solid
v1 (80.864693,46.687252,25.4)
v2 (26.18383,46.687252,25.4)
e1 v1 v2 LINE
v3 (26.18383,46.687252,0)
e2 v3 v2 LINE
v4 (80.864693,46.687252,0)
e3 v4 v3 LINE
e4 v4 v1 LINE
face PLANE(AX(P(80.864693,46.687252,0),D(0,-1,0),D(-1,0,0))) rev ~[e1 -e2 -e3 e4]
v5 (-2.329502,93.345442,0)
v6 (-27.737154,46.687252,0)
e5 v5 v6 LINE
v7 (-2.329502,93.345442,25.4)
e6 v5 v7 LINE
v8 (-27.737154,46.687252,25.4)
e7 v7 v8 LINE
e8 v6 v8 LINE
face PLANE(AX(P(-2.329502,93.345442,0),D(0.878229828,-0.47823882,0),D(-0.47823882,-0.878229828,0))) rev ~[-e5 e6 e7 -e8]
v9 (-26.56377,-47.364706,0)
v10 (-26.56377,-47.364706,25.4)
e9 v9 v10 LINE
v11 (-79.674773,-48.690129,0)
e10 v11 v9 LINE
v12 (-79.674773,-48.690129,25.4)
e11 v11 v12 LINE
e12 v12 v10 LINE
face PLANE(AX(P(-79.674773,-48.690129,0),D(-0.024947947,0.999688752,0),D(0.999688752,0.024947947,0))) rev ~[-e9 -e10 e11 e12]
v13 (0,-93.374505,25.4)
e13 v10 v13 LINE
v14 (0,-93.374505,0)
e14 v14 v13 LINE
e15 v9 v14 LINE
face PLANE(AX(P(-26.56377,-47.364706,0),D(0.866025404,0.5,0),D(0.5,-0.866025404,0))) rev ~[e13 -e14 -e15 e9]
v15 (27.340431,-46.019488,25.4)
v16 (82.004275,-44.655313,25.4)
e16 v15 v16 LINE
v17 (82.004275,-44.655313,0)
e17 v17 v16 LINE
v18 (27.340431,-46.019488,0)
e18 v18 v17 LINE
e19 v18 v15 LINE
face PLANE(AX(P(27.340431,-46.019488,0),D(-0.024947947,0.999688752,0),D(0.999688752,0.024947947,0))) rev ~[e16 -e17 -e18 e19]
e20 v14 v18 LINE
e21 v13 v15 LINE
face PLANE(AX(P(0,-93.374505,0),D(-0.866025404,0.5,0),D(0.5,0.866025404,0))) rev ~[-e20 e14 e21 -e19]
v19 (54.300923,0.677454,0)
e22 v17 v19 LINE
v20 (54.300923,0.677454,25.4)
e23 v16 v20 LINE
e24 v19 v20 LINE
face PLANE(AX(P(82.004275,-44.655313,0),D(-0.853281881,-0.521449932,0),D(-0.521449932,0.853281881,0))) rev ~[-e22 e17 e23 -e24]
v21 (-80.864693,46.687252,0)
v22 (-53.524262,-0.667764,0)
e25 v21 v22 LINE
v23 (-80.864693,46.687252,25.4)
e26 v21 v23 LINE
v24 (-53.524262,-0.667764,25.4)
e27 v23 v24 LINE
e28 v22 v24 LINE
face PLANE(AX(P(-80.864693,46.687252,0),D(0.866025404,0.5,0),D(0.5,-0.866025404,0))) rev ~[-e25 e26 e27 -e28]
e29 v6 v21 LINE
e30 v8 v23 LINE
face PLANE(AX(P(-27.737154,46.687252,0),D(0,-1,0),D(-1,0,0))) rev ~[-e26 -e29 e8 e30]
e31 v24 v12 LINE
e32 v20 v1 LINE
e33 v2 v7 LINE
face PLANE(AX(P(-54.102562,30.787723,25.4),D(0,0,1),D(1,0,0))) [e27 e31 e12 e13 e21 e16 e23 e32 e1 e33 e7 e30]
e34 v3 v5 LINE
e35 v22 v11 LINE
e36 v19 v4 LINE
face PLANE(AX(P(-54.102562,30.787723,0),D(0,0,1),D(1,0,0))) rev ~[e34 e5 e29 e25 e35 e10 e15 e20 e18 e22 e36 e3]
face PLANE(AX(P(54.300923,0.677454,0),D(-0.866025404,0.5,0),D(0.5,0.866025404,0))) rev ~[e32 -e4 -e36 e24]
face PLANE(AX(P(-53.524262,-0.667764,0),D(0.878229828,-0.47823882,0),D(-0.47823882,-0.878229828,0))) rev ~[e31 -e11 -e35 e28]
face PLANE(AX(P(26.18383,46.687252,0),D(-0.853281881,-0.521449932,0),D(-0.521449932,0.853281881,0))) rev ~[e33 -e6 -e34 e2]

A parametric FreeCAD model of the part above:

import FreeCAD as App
import Part
import Sketcher

V = App.Vector
Q = App.Units.Quantity

doc = App.newDocument("Part")
body = doc.addObject("PartDesign::Body", "Body")

sketch1 = doc.addObject("Sketcher::SketchObject", "Sketch")
body.addObject(sketch1)
sketch1.AttachmentSupport = (doc.XY_Plane, [""])
sketch1.MapMode = "FlatFace"
sketch1.addGeometry([
    Part.LineSegment(V(-28, 47, 0), V(-81, 47, 0)),
    Part.LineSegment(V(-81, 47, 0), V(-54, -1, 0)),
    Part.LineSegment(V(-54, -1, 0), V(-80, -49, 0)),
    Part.LineSegment(V(-80, -49, 0), V(-27, -47, 0)),
    Part.LineSegment(V(-27, -47, 0), V(0, -93, 0)),
    Part.LineSegment(V(0, -93, 0), V(27, -46, 0)),
    Part.LineSegment(V(27, -46, 0), V(82, -45, 0)),
    Part.LineSegment(V(82, -45, 0), V(54, 1, 0)),
    Part.LineSegment(V(54, 1, 0), V(81, 47, 0)),
    Part.LineSegment(V(81, 47, 0), V(26, 47, 0)),
    Part.LineSegment(V(26, 47, 0), V(-2, 93, 0)),
    Part.LineSegment(V(-2, 93, 0), V(-28, 47, 0)),
], False)
sketch1.addConstraint([
    Sketcher.Constraint("Coincident", 0, 2, 1, 1),
    Sketcher.Constraint("Coincident", 1, 2, 2, 1),
    Sketcher.Constraint("Coincident", 2, 2, 3, 1),
    Sketcher.Constraint("Coincident", 3, 2, 4, 1),
    Sketcher.Constraint("Coincident", 4, 2, 5, 1),
    Sketcher.Constraint("Coincident", 5, 2, 6, 1),
    Sketcher.Constraint("Coincident", 6, 2, 7, 1),
    Sketcher.Constraint("Coincident", 7, 2, 8, 1),
    Sketcher.Constraint("Coincident", 8, 2, 9, 1),
    Sketcher.Constraint("Coincident", 9, 2, 10, 1),
    Sketcher.Constraint("Coincident", 10, 2, 11, 1),
    Sketcher.Constraint("Coincident", 11, 2, 0, 1),
    Sketcher.Constraint("Horizontal", 0),
    Sketcher.Constraint("Horizontal", 9),
    Sketcher.Constraint("Symmetric", 0, 2, 8, 2, -2),
    Sketcher.Constraint("PointOnObject", 4, 2, -2),
    Sketcher.Constraint("Parallel", 1, 4),
    Sketcher.Constraint("Parallel", 3, 6),
    Sketcher.Constraint("Parallel", 5, 8),
    Sketcher.Constraint("Parallel", 7, 10),
    Sketcher.Constraint("Parallel", 2, 11),
    Sketcher.Constraint("Equal", 1, 2),
    Sketcher.Constraint("Equal", 3, 4),
    Sketcher.Constraint("Equal", 2, 5),
    Sketcher.Constraint("Equal", 5, 6),
    Sketcher.Constraint("Equal", 4, 7),
    Sketcher.Constraint("Equal", 7, 8),
    Sketcher.Constraint("Equal", 6, 10),
    Sketcher.Constraint("Equal", 8, 11),
    Sketcher.Constraint("Angle", 1, Q("-60 deg")),
    Sketcher.Constraint("Angle", 5, Q("60 deg")),
    Sketcher.Constraint("DistanceX", 0, 2, 0, 1, Q("53.127539 mm")),
    Sketcher.Constraint("DistanceY", 4, 2, 3, 2, Q("46.009799 mm")),
    Sketcher.Constraint("DistanceX", 3, 2, 5, 2, Q("53.904201 mm")),
    Sketcher.Constraint("DistanceY", 2, 2, -1, 1, Q("48.690129 mm")),
])
pad1 = doc.addObject("PartDesign::Pad", "Pad")
body.addObject(pad1)
pad1.Profile = sketch1
pad1.Length = Q("1 in")

doc.recompute()
